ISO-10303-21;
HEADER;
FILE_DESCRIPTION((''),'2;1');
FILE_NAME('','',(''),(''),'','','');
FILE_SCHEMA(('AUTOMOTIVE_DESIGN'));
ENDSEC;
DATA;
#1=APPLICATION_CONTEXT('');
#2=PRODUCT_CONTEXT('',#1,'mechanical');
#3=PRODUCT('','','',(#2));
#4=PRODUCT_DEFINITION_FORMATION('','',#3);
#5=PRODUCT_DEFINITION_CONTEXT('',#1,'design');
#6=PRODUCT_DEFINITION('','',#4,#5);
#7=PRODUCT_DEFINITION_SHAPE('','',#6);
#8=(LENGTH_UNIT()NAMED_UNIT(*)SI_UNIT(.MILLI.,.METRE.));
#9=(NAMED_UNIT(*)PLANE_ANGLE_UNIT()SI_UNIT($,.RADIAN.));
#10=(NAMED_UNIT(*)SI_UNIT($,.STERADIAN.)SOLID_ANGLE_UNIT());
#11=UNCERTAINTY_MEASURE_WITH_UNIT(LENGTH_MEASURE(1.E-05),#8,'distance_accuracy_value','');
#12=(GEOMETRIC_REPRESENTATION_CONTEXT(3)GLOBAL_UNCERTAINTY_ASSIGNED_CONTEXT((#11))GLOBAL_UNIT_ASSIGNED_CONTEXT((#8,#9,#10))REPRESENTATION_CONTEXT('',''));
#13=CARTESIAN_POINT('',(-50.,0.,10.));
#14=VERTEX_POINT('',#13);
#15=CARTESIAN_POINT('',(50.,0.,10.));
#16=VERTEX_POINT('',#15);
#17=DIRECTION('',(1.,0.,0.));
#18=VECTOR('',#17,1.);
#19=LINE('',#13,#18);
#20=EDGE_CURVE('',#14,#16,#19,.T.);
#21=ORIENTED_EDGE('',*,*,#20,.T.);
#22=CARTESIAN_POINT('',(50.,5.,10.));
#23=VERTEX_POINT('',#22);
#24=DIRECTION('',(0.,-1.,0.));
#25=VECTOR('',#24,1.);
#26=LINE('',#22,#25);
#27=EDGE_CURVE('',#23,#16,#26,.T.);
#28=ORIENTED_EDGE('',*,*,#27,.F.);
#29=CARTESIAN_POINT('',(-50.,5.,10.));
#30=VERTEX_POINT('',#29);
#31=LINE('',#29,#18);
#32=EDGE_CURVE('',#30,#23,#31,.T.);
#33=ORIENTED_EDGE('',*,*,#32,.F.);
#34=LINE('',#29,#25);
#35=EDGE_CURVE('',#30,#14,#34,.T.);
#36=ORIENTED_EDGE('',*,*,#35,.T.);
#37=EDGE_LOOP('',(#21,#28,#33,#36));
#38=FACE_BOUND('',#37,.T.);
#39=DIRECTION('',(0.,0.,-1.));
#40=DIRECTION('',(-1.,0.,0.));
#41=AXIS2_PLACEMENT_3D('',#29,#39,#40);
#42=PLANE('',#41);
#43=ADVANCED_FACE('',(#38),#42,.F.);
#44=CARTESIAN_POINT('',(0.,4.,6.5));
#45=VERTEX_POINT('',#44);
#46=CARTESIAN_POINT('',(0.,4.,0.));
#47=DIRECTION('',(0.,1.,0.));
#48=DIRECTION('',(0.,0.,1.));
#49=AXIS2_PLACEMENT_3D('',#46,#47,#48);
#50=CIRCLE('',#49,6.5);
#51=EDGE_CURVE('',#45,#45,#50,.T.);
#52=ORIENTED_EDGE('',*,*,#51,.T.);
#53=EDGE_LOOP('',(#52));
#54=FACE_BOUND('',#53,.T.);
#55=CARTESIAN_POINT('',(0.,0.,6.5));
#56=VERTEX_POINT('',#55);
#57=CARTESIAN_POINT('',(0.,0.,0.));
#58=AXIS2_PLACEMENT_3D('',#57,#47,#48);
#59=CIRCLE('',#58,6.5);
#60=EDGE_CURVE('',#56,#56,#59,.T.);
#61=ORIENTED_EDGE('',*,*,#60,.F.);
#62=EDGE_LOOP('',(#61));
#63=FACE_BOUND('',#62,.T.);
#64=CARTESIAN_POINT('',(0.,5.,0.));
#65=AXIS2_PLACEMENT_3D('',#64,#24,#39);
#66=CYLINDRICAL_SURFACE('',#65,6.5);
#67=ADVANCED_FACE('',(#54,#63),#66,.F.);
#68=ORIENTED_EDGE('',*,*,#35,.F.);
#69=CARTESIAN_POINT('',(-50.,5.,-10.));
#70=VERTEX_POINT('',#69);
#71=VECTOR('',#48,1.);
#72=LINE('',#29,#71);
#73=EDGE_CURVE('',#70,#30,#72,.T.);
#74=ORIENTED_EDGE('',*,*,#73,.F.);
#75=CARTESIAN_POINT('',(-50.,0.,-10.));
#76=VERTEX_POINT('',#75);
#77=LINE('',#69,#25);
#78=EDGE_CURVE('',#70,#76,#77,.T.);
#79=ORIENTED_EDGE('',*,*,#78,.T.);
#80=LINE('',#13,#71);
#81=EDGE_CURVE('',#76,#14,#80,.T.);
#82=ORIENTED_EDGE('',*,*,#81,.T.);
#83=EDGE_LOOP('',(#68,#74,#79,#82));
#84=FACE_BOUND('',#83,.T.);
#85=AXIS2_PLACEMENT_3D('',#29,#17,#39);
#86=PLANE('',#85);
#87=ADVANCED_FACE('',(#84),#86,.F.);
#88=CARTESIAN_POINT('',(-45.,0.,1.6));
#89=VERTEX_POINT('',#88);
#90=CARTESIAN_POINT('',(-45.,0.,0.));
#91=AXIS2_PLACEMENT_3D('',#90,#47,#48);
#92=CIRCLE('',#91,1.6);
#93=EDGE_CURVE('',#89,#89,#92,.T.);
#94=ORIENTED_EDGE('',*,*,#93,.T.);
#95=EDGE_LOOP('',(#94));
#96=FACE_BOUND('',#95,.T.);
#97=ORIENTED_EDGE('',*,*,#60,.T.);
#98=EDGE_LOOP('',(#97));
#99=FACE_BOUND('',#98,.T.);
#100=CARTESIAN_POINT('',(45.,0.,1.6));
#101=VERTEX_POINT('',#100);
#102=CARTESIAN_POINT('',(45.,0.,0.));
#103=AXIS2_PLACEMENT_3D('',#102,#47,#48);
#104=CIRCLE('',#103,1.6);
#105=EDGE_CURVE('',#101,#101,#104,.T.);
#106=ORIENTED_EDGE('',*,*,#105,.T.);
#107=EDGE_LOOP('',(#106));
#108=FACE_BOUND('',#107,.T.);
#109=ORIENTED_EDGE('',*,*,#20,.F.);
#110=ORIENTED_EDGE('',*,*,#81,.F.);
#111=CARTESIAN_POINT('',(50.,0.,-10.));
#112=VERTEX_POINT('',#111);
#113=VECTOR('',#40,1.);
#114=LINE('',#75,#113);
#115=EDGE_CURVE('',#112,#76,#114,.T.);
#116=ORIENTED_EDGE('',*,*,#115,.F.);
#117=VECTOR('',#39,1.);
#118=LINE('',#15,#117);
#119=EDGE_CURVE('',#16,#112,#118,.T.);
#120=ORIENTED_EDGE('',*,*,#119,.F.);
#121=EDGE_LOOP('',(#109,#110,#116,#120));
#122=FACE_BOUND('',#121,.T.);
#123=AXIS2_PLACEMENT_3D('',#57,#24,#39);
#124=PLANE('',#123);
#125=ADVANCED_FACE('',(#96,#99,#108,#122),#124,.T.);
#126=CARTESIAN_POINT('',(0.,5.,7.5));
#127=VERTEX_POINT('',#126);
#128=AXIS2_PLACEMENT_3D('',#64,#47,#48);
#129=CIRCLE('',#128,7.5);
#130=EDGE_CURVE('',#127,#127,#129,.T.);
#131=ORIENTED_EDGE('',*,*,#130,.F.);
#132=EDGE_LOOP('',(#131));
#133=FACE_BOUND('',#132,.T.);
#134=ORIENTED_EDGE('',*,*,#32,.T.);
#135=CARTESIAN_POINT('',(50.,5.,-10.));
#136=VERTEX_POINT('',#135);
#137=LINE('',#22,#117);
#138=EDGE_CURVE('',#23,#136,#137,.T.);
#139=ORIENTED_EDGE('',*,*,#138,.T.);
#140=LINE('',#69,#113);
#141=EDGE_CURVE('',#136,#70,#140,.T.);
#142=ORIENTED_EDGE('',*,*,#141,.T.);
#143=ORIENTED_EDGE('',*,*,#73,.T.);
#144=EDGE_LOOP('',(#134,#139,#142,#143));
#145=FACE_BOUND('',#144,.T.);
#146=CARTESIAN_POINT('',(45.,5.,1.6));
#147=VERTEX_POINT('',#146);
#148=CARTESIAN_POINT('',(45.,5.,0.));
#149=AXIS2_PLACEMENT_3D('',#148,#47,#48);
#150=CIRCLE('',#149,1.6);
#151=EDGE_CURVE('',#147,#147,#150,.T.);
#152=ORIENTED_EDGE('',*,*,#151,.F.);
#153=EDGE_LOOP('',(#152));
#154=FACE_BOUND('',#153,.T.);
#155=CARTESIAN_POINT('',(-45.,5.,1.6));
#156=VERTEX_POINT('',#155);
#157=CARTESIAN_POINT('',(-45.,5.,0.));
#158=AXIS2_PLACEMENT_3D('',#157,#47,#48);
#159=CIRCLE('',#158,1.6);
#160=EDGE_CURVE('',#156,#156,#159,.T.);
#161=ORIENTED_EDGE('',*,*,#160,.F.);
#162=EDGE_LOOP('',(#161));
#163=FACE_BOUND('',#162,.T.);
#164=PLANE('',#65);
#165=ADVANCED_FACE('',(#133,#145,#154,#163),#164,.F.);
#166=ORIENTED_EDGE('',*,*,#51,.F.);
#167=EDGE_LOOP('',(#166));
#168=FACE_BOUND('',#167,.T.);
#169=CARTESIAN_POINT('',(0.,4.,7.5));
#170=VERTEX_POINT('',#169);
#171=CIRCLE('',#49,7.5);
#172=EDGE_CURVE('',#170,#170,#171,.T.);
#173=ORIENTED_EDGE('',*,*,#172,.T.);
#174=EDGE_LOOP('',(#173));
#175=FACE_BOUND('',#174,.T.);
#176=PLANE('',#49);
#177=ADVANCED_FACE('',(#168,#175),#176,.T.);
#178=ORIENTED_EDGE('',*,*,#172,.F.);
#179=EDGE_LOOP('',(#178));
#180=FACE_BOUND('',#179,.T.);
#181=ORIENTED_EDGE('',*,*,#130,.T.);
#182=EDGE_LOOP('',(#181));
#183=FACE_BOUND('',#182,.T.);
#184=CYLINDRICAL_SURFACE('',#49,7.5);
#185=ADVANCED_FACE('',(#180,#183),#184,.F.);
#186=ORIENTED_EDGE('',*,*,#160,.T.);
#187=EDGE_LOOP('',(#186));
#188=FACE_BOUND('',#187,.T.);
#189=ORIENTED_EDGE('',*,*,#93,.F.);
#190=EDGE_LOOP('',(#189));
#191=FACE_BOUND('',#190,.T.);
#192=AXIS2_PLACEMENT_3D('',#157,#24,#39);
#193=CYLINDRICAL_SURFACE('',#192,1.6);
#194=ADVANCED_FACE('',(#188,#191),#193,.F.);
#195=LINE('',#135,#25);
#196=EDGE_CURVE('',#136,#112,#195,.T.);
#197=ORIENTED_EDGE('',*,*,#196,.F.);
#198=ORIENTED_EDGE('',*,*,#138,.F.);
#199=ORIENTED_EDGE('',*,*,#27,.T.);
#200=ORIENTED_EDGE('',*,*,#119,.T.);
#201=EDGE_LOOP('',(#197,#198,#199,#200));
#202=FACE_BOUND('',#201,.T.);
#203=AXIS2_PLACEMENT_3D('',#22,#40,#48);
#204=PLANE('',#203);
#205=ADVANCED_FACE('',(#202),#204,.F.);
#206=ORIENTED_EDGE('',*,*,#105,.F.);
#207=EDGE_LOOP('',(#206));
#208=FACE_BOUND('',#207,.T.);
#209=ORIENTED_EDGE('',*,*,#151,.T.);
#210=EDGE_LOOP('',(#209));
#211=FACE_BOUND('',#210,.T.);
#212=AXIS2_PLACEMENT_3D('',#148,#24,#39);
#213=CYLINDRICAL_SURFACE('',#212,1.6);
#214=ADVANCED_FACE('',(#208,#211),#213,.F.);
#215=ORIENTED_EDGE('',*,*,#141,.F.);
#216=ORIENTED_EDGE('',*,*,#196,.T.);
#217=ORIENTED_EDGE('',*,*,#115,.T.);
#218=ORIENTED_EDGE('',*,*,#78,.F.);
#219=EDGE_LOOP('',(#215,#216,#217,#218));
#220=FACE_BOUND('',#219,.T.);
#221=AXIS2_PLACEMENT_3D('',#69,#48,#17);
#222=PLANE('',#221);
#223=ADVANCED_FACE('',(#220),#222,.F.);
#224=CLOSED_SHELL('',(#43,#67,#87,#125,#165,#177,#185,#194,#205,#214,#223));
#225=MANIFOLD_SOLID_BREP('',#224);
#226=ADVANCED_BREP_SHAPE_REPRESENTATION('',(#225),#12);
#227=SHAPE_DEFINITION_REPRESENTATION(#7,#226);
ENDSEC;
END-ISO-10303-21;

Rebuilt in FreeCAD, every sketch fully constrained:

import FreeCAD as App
import Part
import Sketcher
Q = App.Units.Quantity


def add_polygon(sketch, points):
    """Adds a closed chain of lines whose ends are joined by coincident constraints."""
    first, n = sketch.GeometryCount, len(points)
    for a, b in zip(points, points[1:] + points[:1]):
        sketch.addGeometry(Part.LineSegment(App.Vector(*a, 0), App.Vector(*b, 0)), False)
    for i in range(n):
        sketch.addConstraint(Sketcher.Constraint("Coincident", first + i, 2, first + (i + 1) % n, 1))

doc = App.newDocument("Part")
body = doc.addObject("PartDesign::Body", "Body")

# Sketch on XZ plane
sketch1 = body.newObject("Sketcher::SketchObject", "Sketch")
sketch1.AttachmentSupport = (doc.getObject("XZ_Plane"), [""])
sketch1.MapMode = "FlatFace"
add_polygon(sketch1, [(-50, -10), (-50, 10), (50, 10), (50, -10)])  # lines 0-3
sketch1.addGeometry(Part.Circle(App.Vector(-45, 0, 0), App.Vector(0, 0, 1), 1.6), False)  # 4
sketch1.addGeometry(Part.Circle(App.Vector(0, 0, 0), App.Vector(0, 0, 1), 6.5), False)  # 5
sketch1.addGeometry(Part.Circle(App.Vector(45, 0, 0), App.Vector(0, 0, 1), 1.6), False)  # 6
sketch1.addConstraint(Sketcher.Constraint("Vertical", 0))
sketch1.addConstraint(Sketcher.Constraint("Horizontal", 1))
sketch1.addConstraint(Sketcher.Constraint("Vertical", 2))
sketch1.addConstraint(Sketcher.Constraint("Horizontal", 3))
sketch1.addConstraint(Sketcher.Constraint("Coincident", 5, 3, -1, 1))
sketch1.addConstraint(Sketcher.Constraint("Equal", 4, 6))
sketch1.addConstraint(Sketcher.Constraint("Symmetric", 4, 3, 6, 3, -1, 1))
sketch1.addConstraint(Sketcher.Constraint("Symmetric", 0, 2, 2, 2, -1, 1))
sketch1.addConstraint(Sketcher.Constraint("PointOnObject", 4, 3, -1))
sketch1.addConstraint(Sketcher.Constraint("Diameter", 5, Q("13 mm")))
sketch1.addConstraint(Sketcher.Constraint("Diameter", 4, Q("3.2 mm")))
sketch1.addConstraint(Sketcher.Constraint("DistanceX", 1, 1, 1, 2, Q("100 mm")))
sketch1.addConstraint(Sketcher.Constraint("DistanceY", 0, 1, 0, 2, Q("20 mm")))
sketch1.addConstraint(Sketcher.Constraint("DistanceX", 4, 3, -1, 1, Q("45 mm")))
pad1 = body.newObject("PartDesign::Pad", "Pad")
pad1.Profile = sketch1
pad1.Length = 5
pad1.Reversed = True

# Sketch on XZ plane
sketch2 = body.newObject("Sketcher::SketchObject", "Sketch001")
sketch2.AttachmentSupport = (doc.getObject("XZ_Plane"), [""])
sketch2.MapMode = "FlatFace"
sketch2.AttachmentOffset = App.Placement(App.Vector(0, 0, -5), App.Rotation())
sketch2.addGeometry(Part.Circle(App.Vector(0, 0, 0), App.Vector(0, 0, 1), 7.5), False)
sketch2.addConstraint(Sketcher.Constraint("Coincident", 0, 3, -1, 1))
sketch2.addConstraint(Sketcher.Constraint("Diameter", 0, Q("15 mm")))
pocket1 = body.newObject("PartDesign::Pocket", "Pocket")
pocket1.Profile = sketch2
pocket1.Length = 1
pocket1.Reversed = True

doc.recompute()
